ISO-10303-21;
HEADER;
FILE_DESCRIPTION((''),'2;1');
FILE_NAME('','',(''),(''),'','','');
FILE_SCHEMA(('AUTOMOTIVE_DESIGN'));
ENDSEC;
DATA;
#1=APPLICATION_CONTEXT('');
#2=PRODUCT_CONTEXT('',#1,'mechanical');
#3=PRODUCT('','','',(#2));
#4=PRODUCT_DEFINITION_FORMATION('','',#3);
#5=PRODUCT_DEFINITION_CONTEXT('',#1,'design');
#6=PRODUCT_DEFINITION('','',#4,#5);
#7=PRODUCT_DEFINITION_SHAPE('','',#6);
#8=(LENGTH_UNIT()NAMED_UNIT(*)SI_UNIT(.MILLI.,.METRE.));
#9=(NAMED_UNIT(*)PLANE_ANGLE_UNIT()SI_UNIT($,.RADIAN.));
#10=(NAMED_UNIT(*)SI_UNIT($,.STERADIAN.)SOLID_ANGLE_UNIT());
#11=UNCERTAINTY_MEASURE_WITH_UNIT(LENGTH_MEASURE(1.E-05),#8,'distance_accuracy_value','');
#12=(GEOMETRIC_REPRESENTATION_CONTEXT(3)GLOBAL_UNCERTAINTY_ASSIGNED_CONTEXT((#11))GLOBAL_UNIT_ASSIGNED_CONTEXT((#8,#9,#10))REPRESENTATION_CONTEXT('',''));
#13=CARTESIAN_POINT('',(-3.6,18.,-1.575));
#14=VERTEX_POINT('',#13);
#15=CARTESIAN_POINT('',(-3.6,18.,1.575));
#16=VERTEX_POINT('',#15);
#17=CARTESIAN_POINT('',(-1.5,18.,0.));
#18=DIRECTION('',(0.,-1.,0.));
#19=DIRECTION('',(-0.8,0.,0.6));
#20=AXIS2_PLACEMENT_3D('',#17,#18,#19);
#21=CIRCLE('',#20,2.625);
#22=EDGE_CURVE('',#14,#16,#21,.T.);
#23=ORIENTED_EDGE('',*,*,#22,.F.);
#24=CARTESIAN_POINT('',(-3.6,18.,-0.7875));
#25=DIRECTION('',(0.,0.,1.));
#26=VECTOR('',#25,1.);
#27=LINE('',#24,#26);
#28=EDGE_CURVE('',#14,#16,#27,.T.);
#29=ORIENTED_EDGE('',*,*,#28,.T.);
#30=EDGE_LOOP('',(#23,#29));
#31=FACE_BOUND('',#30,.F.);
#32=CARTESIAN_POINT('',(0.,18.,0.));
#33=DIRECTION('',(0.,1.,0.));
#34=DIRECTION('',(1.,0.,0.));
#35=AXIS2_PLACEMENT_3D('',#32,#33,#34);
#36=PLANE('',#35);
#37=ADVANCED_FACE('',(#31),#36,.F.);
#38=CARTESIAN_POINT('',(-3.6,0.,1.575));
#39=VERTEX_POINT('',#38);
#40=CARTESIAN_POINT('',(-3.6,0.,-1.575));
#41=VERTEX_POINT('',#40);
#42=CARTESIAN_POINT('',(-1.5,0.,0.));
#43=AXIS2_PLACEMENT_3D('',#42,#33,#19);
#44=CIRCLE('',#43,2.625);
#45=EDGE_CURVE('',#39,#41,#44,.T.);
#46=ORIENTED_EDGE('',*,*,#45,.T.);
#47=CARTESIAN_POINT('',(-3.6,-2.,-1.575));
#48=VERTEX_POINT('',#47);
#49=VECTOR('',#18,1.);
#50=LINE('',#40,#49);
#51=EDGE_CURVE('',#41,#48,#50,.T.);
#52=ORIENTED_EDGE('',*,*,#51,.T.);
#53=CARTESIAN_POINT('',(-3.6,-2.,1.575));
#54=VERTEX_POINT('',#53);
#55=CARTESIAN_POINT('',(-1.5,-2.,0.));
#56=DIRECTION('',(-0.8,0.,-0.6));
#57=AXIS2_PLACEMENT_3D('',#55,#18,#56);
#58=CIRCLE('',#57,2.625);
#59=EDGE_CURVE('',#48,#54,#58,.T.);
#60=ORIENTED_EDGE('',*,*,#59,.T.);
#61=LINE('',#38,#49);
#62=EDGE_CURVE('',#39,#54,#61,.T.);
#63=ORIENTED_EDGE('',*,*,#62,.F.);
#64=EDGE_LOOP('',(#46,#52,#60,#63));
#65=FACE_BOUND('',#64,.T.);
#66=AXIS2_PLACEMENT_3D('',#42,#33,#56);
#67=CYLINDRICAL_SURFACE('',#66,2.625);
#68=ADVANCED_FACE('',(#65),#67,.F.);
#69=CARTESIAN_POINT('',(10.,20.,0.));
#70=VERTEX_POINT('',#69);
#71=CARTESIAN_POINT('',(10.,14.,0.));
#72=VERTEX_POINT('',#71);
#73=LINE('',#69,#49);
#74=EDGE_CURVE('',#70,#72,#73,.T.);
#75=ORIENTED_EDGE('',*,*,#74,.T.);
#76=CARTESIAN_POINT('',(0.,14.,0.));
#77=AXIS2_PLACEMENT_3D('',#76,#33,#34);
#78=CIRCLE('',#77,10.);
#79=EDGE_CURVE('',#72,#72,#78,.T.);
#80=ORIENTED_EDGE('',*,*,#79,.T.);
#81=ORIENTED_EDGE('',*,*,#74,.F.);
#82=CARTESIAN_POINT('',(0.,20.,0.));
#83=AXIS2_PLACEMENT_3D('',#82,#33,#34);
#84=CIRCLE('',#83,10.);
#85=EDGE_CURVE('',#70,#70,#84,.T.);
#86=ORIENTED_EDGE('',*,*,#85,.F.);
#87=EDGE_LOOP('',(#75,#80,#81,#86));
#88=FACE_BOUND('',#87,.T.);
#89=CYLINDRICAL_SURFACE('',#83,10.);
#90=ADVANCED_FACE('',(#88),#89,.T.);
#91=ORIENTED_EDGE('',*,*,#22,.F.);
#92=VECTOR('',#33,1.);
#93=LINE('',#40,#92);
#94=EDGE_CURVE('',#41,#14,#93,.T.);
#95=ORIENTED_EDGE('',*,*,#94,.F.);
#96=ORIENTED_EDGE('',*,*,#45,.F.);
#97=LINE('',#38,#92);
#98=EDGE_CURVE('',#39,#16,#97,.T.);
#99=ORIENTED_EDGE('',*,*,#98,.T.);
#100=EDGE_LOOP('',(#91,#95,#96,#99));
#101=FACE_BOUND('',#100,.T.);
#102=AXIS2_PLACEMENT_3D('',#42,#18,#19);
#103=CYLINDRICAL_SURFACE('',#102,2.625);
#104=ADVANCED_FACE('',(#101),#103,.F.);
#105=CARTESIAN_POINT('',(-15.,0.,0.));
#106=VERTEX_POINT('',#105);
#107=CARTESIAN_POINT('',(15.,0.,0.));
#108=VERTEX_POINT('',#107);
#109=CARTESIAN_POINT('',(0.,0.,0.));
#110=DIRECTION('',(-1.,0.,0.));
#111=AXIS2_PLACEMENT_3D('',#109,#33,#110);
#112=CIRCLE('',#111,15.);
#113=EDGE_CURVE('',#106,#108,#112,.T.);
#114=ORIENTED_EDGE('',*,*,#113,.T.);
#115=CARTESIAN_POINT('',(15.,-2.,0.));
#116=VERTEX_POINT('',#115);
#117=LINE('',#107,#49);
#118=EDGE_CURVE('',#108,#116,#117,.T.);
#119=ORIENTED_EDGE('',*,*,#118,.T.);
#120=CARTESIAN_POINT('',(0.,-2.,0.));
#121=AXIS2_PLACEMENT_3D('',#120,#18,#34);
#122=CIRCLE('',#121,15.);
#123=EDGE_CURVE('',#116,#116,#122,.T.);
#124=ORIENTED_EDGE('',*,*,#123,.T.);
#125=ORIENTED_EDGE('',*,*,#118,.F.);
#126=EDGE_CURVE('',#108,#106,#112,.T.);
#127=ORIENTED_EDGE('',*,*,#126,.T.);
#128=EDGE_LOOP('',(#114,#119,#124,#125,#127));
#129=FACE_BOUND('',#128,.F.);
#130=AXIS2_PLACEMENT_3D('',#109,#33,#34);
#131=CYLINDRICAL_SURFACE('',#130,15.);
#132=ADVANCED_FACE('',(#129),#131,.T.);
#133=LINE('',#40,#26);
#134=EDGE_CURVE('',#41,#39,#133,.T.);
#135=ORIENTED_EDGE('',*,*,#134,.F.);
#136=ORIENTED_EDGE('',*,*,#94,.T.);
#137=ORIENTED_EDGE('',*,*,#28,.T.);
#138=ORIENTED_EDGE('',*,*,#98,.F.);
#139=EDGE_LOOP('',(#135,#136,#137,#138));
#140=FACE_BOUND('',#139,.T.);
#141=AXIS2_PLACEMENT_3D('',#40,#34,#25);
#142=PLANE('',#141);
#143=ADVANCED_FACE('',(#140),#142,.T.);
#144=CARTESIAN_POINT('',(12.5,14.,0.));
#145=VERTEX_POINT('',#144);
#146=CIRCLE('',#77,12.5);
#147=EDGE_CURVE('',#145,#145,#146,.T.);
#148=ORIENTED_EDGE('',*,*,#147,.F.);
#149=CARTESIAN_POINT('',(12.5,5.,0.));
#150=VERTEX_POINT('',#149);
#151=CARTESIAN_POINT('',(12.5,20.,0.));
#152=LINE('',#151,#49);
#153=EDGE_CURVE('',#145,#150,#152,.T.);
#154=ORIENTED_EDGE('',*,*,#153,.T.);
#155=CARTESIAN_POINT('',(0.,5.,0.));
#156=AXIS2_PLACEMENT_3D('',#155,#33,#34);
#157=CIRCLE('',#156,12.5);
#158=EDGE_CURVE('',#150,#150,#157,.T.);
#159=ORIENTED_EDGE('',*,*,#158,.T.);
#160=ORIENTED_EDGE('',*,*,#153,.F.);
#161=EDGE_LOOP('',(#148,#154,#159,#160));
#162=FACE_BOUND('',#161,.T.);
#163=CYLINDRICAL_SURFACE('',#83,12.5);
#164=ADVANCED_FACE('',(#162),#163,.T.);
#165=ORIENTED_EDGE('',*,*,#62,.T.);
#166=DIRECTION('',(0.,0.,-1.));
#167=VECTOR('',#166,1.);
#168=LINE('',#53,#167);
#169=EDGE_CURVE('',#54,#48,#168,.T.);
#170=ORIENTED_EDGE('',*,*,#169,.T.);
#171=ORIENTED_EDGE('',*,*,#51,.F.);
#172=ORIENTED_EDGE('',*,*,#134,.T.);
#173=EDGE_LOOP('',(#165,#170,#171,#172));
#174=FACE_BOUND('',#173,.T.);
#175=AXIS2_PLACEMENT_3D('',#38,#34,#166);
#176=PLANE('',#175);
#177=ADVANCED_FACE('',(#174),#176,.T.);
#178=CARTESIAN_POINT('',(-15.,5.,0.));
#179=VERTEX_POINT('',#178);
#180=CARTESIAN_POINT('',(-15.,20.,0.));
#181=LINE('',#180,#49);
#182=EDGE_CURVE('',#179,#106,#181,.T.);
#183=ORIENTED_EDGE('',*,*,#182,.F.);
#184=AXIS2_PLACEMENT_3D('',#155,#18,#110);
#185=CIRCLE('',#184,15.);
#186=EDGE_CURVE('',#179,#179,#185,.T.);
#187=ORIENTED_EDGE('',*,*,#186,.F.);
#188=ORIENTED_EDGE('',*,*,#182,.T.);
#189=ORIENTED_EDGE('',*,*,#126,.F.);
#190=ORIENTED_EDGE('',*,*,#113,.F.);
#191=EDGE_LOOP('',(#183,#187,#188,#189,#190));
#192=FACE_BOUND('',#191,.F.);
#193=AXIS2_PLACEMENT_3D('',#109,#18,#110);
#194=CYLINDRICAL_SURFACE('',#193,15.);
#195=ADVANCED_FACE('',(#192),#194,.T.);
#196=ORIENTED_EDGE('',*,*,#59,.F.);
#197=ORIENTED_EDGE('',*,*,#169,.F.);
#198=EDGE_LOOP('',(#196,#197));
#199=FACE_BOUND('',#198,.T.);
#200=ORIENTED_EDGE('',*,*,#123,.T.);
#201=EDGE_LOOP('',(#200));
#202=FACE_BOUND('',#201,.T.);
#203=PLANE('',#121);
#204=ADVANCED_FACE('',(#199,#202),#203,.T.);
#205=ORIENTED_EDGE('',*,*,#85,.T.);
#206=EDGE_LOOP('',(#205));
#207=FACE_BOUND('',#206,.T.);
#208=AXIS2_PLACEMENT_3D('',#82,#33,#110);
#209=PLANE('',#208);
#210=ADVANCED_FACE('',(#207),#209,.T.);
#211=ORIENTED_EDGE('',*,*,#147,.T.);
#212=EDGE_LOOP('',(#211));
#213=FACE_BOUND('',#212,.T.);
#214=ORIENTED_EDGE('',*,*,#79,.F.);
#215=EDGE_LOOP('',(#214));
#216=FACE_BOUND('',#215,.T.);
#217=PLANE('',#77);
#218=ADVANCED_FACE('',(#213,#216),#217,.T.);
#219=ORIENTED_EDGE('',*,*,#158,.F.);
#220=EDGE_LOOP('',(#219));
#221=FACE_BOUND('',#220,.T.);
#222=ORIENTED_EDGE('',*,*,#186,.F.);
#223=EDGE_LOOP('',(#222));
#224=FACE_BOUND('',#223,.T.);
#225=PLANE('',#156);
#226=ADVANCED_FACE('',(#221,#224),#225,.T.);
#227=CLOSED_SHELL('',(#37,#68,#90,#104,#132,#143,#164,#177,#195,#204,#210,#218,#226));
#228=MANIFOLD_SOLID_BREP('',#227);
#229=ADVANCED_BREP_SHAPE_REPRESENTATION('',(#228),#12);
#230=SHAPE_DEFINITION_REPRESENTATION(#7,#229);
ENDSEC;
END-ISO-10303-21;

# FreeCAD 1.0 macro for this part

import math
import FreeCAD as App
import Part
import Sketcher

V = App.Vector
Q = App.Units.Quantity

doc = App.newDocument("Part")
body = doc.addObject("PartDesign::Body", "Body")

sketch1 = body.newObject("Sketcher::SketchObject", "Sketch")
sketch1.AttachmentSupport = (doc.getObject("XZ_Plane"), [""])
sketch1.MapMode = "FlatFace"
sketch1.addGeometry(Part.Circle(V(0, 0, 0), V(0, 0, 1), 15), False)
sketch1.addGeometry(Part.ArcOfCircle(Part.Circle(V(-1.5, 0, 0), V(0, 0, 1), 2.6), math.radians(-143), math.radians(143)), False)
sketch1.addGeometry(Part.LineSegment(V(-3.6, 1.6, 0), V(-3.6, -1.6, 0)), False)
sketch1.addConstraint(Sketcher.Constraint("Coincident", 1, 1, 2, 2))
sketch1.addConstraint(Sketcher.Constraint("Coincident", 2, 1, 1, 2))
sketch1.addConstraint(Sketcher.Constraint("Vertical", 2))
sketch1.addConstraint(Sketcher.Constraint("Coincident", 0, 3, -1, 1))
sketch1.addConstraint(Sketcher.Constraint("PointOnObject", 1, 3, -1))
sketch1.addConstraint(Sketcher.Constraint("Diameter", 0, Q("30 mm")))
sketch1.addConstraint(Sketcher.Constraint("Radius", 1, Q("2.625 mm")))
sketch1.addConstraint(Sketcher.Constraint("DistanceX", 1, 1, -1, 1, Q("3.6 mm")))
sketch1.addConstraint(Sketcher.Constraint("DistanceY", 2, 2, 2, 1, Q("3.15 mm")))
pad1 = body.newObject("PartDesign::Pad", "Pad")
pad1.Profile = sketch1
pad1.Length = 20
pad1.Reversed = True

sketch2 = body.newObject("Sketcher::SketchObject", "Sketch001")
sketch2.AttachmentSupport = (doc.getObject("XZ_Plane"), [""])
sketch2.MapMode = "FlatFace"
sketch2.AttachmentOffset = App.Placement(V(0, 0, -20), App.Rotation())
sketch2.addGeometry(Part.Circle(V(0, 0, 0), V(0, 0, 1), 15), False)
sketch2.addConstraint(Sketcher.Constraint("Coincident", 0, 3, -1, 1))
sketch2.addConstraint(Sketcher.Constraint("Diameter", 0, Q("30 mm")))
pad2 = body.newObject("PartDesign::Pad", "Pad001")
pad2.Profile = sketch2
pad2.Length = 2

sketch3 = body.newObject("Sketcher::SketchObject", "Sketch002")
sketch3.AttachmentSupport = (doc.getObject("XZ_Plane"), [""])
sketch3.MapMode = "FlatFace"
sketch3.AttachmentOffset = App.Placement(V(0, 0, -20), App.Rotation())
sketch3.addGeometry(Part.Circle(V(0, 0, 0), V(0, 0, 1), 15), False)
sketch3.addGeometry(Part.Circle(V(0, 0, 0), V(0, 0, 1), 12), False)
sketch3.addConstraint(Sketcher.Constraint("Coincident", 0, 3, -1, 1))
sketch3.addConstraint(Sketcher.Constraint("Coincident", 1, 3, -1, 1))
sketch3.addConstraint(Sketcher.Constraint("Diameter", 1, Q("25 mm")))
sketch3.addConstraint(Sketcher.Constraint("Diameter", 0, Q("30 mm")))
pocket1 = body.newObject("PartDesign::Pocket", "Pocket")
pocket1.Profile = sketch3
pocket1.Length = 15
pocket1.Reversed = True

sketch4 = body.newObject("Sketcher::SketchObject", "Sketch003")
sketch4.AttachmentSupport = (doc.getObject("XZ_Plane"), [""])
sketch4.MapMode = "FlatFace"
sketch4.AttachmentOffset = App.Placement(V(0, 0, -20), App.Rotation())
sketch4.addGeometry(Part.Circle(V(0, 0, 0), V(0, 0, 1), 12), False)
sketch4.addGeometry(Part.Circle(V(0, 0, 0), V(0, 0, 1), 10), False)
sketch4.addConstraint(Sketcher.Constraint("Coincident", 0, 3, -1, 1))
sketch4.addConstraint(Sketcher.Constraint("Coincident", 1, 3, -1, 1))
sketch4.addConstraint(Sketcher.Constraint("Diameter", 1, Q("20 mm")))
sketch4.addConstraint(Sketcher.Constraint("Diameter", 0, Q("25 mm")))
pocket2 = body.newObject("PartDesign::Pocket", "Pocket001")
pocket2.Profile = sketch4
pocket2.Length = 6
pocket2.Reversed = True

sketch5 = body.newObject("Sketcher::SketchObject", "Sketch004")
sketch5.AttachmentSupport = (doc.getObject("XZ_Plane"), [""])
sketch5.MapMode = "FlatFace"
sketch5.addGeometry(Part.Circle(V(0, 0, 0), V(0, 0, 1), 15), False)
sketch5.addGeometry(Part.LineSegment(V(-3.6, -1.6, 0), V(-3.6, 1.6, 0)), False)
sketch5.addGeometry(Part.ArcOfCircle(Part.Circle(V(-1.5, 0, 0), V(0, 0, 1), 2.6), math.radians(-143), math.radians(143)), False)
sketch5.addConstraint(Sketcher.Constraint("Coincident", 1, 1, 2, 1))
sketch5.addConstraint(Sketcher.Constraint("Coincident", 2, 2, 1, 2))
sketch5.addConstraint(Sketcher.Constraint("Vertical", 1))
sketch5.addConstraint(Sketcher.Constraint("Coincident", 0, 3, -1, 1))
sketch5.addConstraint(Sketcher.Constraint("PointOnObject", 2, 3, -1))
sketch5.addConstraint(Sketcher.Constraint("Diameter", 0, Q("30 mm")))
sketch5.addConstraint(Sketcher.Constraint("Radius", 2, Q("2.625 mm")))
sketch5.addConstraint(Sketcher.Constraint("DistanceY", 1, 1, 1, 2, Q("3.15 mm")))
sketch5.addConstraint(Sketcher.Constraint("DistanceX", 2, 3, -1, 1, Q("1.5 mm")))
pad3 = body.newObject("PartDesign::Pad", "Pad002")
pad3.Profile = sketch5
pad3.Length = 2

doc.recompute()
